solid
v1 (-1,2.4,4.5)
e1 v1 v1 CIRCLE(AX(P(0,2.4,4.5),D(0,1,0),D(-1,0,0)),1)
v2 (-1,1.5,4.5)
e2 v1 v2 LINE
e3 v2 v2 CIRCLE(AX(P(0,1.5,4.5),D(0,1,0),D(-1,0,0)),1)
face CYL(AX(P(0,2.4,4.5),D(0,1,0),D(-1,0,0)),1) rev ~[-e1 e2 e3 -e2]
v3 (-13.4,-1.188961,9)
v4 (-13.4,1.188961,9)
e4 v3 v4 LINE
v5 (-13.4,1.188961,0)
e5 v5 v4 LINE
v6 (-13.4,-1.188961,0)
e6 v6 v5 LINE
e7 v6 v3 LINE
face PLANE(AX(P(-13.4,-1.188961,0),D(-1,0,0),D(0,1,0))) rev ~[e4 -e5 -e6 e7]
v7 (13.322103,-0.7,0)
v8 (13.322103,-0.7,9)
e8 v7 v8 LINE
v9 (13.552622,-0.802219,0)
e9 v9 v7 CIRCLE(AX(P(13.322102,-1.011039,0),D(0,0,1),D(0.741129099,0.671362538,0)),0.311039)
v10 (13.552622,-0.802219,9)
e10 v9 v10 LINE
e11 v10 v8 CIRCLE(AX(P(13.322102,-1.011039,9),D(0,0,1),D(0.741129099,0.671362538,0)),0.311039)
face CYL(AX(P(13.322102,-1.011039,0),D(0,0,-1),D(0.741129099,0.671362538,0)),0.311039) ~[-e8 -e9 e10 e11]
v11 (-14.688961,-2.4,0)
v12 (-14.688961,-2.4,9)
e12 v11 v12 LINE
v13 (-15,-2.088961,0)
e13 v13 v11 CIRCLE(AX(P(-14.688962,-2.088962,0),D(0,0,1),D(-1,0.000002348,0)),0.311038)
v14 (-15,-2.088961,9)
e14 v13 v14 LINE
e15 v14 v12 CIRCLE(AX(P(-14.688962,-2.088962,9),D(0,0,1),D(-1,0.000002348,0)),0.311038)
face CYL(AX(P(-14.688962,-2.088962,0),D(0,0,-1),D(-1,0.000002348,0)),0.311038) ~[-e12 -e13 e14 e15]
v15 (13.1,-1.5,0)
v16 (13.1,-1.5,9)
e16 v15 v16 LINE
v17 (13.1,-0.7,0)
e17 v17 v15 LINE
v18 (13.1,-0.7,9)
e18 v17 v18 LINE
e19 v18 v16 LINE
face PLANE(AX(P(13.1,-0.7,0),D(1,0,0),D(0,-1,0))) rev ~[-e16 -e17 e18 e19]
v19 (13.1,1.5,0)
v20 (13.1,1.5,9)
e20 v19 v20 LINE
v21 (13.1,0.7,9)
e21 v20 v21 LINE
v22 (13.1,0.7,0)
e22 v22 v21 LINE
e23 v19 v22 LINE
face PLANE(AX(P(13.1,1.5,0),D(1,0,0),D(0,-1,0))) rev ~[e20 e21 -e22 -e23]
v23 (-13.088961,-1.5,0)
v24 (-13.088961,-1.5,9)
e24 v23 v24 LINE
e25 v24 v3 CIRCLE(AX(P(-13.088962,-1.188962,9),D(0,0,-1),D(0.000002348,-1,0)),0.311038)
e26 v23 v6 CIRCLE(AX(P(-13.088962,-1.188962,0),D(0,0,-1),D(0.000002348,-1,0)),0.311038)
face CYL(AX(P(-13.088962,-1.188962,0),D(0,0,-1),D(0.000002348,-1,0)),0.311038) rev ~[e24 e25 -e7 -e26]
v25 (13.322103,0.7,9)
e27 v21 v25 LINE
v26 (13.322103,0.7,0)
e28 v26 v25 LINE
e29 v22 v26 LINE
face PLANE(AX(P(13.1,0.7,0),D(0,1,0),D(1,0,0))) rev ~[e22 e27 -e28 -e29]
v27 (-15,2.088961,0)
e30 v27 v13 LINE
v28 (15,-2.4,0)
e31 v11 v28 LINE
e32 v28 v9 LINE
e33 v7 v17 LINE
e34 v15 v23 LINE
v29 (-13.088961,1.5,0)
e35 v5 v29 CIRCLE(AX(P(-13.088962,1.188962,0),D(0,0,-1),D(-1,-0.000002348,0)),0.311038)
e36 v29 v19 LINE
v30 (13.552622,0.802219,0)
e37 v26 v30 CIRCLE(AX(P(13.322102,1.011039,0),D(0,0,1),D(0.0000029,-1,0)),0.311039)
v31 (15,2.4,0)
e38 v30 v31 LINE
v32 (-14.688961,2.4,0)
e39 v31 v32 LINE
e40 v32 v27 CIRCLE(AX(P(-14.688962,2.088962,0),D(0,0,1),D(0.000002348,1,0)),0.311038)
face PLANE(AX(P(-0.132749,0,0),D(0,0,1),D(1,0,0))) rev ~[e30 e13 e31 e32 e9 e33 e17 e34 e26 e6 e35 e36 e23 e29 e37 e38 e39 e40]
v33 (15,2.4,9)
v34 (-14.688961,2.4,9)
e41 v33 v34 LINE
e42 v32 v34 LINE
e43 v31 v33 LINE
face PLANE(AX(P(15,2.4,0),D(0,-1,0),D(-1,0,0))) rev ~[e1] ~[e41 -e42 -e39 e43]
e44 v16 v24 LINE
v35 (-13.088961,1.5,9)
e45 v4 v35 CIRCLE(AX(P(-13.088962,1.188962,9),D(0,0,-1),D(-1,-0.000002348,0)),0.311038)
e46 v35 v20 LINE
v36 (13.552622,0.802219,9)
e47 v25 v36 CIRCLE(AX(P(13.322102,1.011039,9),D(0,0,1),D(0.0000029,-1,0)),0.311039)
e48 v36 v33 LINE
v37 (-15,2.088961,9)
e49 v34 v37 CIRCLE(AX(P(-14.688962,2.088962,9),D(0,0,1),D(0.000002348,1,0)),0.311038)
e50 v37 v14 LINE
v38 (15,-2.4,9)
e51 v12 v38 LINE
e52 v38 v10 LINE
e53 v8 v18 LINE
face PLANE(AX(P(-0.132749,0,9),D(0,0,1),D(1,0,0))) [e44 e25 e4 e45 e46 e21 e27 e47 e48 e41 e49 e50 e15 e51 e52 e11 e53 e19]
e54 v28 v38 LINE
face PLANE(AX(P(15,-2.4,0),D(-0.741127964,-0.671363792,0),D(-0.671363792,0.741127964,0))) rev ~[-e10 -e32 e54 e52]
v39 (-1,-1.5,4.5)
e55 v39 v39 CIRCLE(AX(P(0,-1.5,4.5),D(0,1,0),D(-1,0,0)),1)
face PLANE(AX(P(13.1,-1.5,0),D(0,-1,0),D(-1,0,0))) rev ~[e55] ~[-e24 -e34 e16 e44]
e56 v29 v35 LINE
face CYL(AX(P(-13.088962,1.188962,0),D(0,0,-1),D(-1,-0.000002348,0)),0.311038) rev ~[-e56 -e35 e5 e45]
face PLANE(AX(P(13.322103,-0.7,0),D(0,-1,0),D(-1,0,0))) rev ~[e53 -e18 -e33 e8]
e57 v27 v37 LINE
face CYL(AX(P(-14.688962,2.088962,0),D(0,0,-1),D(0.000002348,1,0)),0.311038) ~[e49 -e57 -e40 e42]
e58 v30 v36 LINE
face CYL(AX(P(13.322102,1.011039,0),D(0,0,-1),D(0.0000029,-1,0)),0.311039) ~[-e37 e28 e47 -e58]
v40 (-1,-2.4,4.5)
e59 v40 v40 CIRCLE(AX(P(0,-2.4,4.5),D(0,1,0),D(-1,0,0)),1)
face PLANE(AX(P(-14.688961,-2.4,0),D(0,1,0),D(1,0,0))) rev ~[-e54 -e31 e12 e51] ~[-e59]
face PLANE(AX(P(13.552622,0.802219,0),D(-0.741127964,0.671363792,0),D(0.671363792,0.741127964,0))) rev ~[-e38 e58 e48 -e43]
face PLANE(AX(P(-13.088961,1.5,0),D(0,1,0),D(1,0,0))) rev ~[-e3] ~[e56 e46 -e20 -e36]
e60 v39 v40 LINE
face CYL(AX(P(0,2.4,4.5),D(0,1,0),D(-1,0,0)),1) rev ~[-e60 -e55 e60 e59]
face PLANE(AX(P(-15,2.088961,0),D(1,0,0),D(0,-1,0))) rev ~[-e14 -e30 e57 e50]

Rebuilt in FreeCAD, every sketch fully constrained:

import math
import FreeCAD as App
import Part
import Sketcher
Q = App.Units.Quantity

doc = App.newDocument("Part")
params = doc.addObject("Spreadsheet::Sheet", "Params")
for row, (alias, value) in enumerate([
    ("sketch1_height", "0.8 mm"),
    ("pad1_length", "9 mm"),
    ("sketch2_diameter", "2 mm"),
], start=1):
    params.set(f"A{row}", alias)
    params.set(f"B{row}", "=" + value)
    params.setAlias(f"B{row}", alias)

body = doc.addObject("PartDesign::Body", "Body")

# Sketch on XY plane
sketch1 = body.newObject("Sketcher::SketchObject", "Sketch")
sketch1.AttachmentSupport = (doc.getObject("XY_Plane"), [""])
sketch1.MapMode = "FlatFace"
sketch1.addGeometry(Part.LineSegment(App.Vector(-14.688961, -2.4, 0), App.Vector(15, -2.4, 0)), False)
sketch1.addGeometry(Part.LineSegment(App.Vector(15, -2.4, 0), App.Vector(13.552622, -0.802219, 0)), False)
sketch1.addGeometry(Part.ArcOfCircle(Part.Circle(App.Vector(13.322102, -1.011039, 0), App.Vector(0, 0, 1), 0.311039), math.radians(42.172313), math.radians(89.999834)), False)
sketch1.addGeometry(Part.LineSegment(App.Vector(13.322103, -0.7, 0), App.Vector(13.1, -0.7, 0)), False)
sketch1.addGeometry(Part.LineSegment(App.Vector(13.1, -0.7, 0), App.Vector(13.1, -1.5, 0)), False)
sketch1.addGeometry(Part.LineSegment(App.Vector(13.1, -1.5, 0), App.Vector(-13.088961, -1.5, 0)), False)
sketch1.addGeometry(Part.ArcOfCircle(Part.Circle(App.Vector(-13.088962, -1.188962, 0), App.Vector(0, 0, 1), 0.311038), math.radians(179.999866), math.radians(270.000134)), False)
sketch1.addGeometry(Part.LineSegment(App.Vector(-13.4, -1.188961, 0), App.Vector(-13.4, 1.188961, 0)), False)
sketch1.addGeometry(Part.ArcOfCircle(Part.Circle(App.Vector(-13.088962, 1.188962, 0), App.Vector(0, 0, 1), 0.311038), math.radians(89.999866), math.radians(180.000134)), False)
sketch1.addGeometry(Part.LineSegment(App.Vector(-13.088961, 1.5, 0), App.Vector(13.1, 1.5, 0)), False)
sketch1.addGeometry(Part.LineSegment(App.Vector(13.1, 1.5, 0), App.Vector(13.1, 0.7, 0)), False)
sketch1.addGeometry(Part.LineSegment(App.Vector(13.1, 0.7, 0), App.Vector(13.322103, 0.7, 0)), False)
sketch1.addGeometry(Part.ArcOfCircle(Part.Circle(App.Vector(13.322102, 1.011039, 0), App.Vector(0, 0, 1), 0.311039), math.radians(-89.999834), math.radians(-42.172313)), False)
sketch1.addGeometry(Part.LineSegment(App.Vector(13.552622, 0.802219, 0), App.Vector(15, 2.4, 0)), False)
sketch1.addGeometry(Part.LineSegment(App.Vector(15, 2.4, 0), App.Vector(-14.688961, 2.4, 0)), False)
sketch1.addGeometry(Part.ArcOfCircle(Part.Circle(App.Vector(-14.688962, 2.088962, 0), App.Vector(0, 0, 1), 0.311038), math.radians(89.999866), math.radians(180.000134)), False)
sketch1.addGeometry(Part.LineSegment(App.Vector(-15, 2.088961, 0), App.Vector(-15, -2.088961, 0)), False)
sketch1.addGeometry(Part.ArcOfCircle(Part.Circle(App.Vector(-14.688962, -2.088962, 0), App.Vector(0, 0, 1), 0.311038), math.radians(179.999866), math.radians(270.000134)), False)
sketch1.addConstraint(Sketcher.Constraint("Coincident", 0, 2, 1, 1))
sketch1.addConstraint(Sketcher.Constraint("Tangent", 1, 2, 2, 1))
sketch1.addConstraint(Sketcher.Constraint("Coincident", 2, 2, 3, 1))
sketch1.addConstraint(Sketcher.Constraint("Coincident", 3, 2, 4, 1))
sketch1.addConstraint(Sketcher.Constraint("Coincident", 4, 2, 5, 1))
sketch1.addConstraint(Sketcher.Constraint("Coincident", 5, 2, 6, 2))
sketch1.addConstraint(Sketcher.Constraint("Coincident", 6, 1, 7, 1))
sketch1.addConstraint(Sketcher.Constraint("Coincident", 7, 2, 8, 2))
sketch1.addConstraint(Sketcher.Constraint("Coincident", 8, 1, 9, 1))
sketch1.addConstraint(Sketcher.Constraint("Coincident", 9, 2, 10, 1))
sketch1.addConstraint(Sketcher.Constraint("Coincident", 10, 2, 11, 1))
sketch1.addConstraint(Sketcher.Constraint("Coincident", 11, 2, 12, 1))
sketch1.addConstraint(Sketcher.Constraint("Tangent", 12, 2, 13, 1))
sketch1.addConstraint(Sketcher.Constraint("Coincident", 13, 2, 14, 1))
sketch1.addConstraint(Sketcher.Constraint("Coincident", 14, 2, 15, 1))
sketch1.addConstraint(Sketcher.Constraint("Coincident", 15, 2, 16, 1))
sketch1.addConstraint(Sketcher.Constraint("Coincident", 16, 2, 17, 1))
sketch1.addConstraint(Sketcher.Constraint("Coincident", 17, 2, 0, 1))
sketch1.addConstraint(Sketcher.Constraint("Horizontal", 0))
sketch1.addConstraint(Sketcher.Constraint("Horizontal", 3))
sketch1.addConstraint(Sketcher.Constraint("Vertical", 4))
sketch1.addConstraint(Sketcher.Constraint("Horizontal", 5))
sketch1.addConstraint(Sketcher.Constraint("Vertical", 7))
sketch1.addConstraint(Sketcher.Constraint("Horizontal", 9))
sketch1.addConstraint(Sketcher.Constraint("Vertical", 10))
sketch1.addConstraint(Sketcher.Constraint("Horizontal", 11))
sketch1.addConstraint(Sketcher.Constraint("Horizontal", 14))
sketch1.addConstraint(Sketcher.Constraint("Vertical", 16))
sketch1.addConstraint(Sketcher.Constraint("Equal", 2, 6))
sketch1.addConstraint(Sketcher.Constraint("Equal", 6, 8))
sketch1.addConstraint(Sketcher.Constraint("Equal", 8, 12))
sketch1.addConstraint(Sketcher.Constraint("Equal", 12, 15))
sketch1.addConstraint(Sketcher.Constraint("Equal", 15, 17))
sketch1.addConstraint(Sketcher.Constraint("Symmetric", 2, 3, 12, 3, -1))
sketch1.addConstraint(Sketcher.Constraint("Symmetric", 5, 2, 8, 1, -1))
sketch1.addConstraint(Sketcher.Constraint("Symmetric", 0, 2, 13, 2, -1))
sketch1.addConstraint(Sketcher.Constraint("Horizontal", 8, 3, 7, 2))
sketch1.addConstraint(Sketcher.Constraint("Horizontal", 17, 3, 16, 2))
sketch1.addConstraint(Sketcher.Constraint("Vertical", 12, 3, 2, 2))
sketch1.addConstraint(Sketcher.Constraint("Vertical", 8, 3, 5, 2))
sketch1.addConstraint(Sketcher.Constraint("Vertical", 4, 2, 9, 2))
sketch1.addConstraint(Sketcher.Constraint("Vertical", 2, 2, 11, 2))
sketch1.addConstraint(Sketcher.Constraint("Vertical", 17, 3, 14, 2))
sketch1.addConstraint(Sketcher.Constraint("Vertical", 14, 2, 17, 2))
sketch1.addConstraint(Sketcher.Constraint("DistanceY", 4, 2, 4, 1, Q("0.8 mm")))
sketch1.addConstraint(Sketcher.Constraint("DistanceX", -1, 1, 0, 2, Q("15 mm")))
sketch1.addConstraint(Sketcher.Constraint("DistanceX", 15, 2, -1, 1, Q("15 mm")))
sketch1.addConstraint(Sketcher.Constraint("DistanceY", 0, 2, -1, 1, Q("2.4 mm")))
sketch1.addConstraint(Sketcher.Constraint("DistanceY", 2, 2, -1, 1, Q("0.7 mm")))
sketch1.addConstraint(Sketcher.Constraint("DistanceX", -1, 1, 3, 2, Q("13.1 mm")))
sketch1.addConstraint(Sketcher.Constraint("DistanceX", 6, 1, -1, 1, Q("13.4 mm")))
sketch1.addConstraint(Sketcher.Constraint("DistanceY", 17, 3, 6, 1, Q("0.900001 mm")))
sketch1.addConstraint(Sketcher.Constraint("DistanceY", 7, 2, 15, 2, Q("0.9 mm")))
sketch1.addConstraint(Sketcher.Constraint("Radius", 2, Q("0.311039 mm")))
sketch1.addConstraint(Sketcher.Constraint("DistanceX", 3, 2, 3, 1, Q("0.222103 mm")))
sketch1.setExpression("Constraints[44]", "Params.sketch1_height")
pad1 = body.newObject("PartDesign::Pad", "Pad")
pad1.Profile = sketch1
pad1.setExpression("Length", "Params.pad1_length")

# Sketch on XZ plane
sketch2 = body.newObject("Sketcher::SketchObject", "Sketch001")
sketch2.AttachmentSupport = (doc.getObject("XZ_Plane"), [""])
sketch2.MapMode = "FlatFace"
sketch2.AttachmentOffset = App.Placement(App.Vector(0, 0, -2.4), App.Rotation())
sketch2.addGeometry(Part.Circle(App.Vector(0, 4.5, 0), App.Vector(0, 0, 1), 1), False)
sketch2.addConstraint(Sketcher.Constraint("PointOnObject", 0, 3, -2))
sketch2.addConstraint(Sketcher.Constraint("Diameter", 0, Q("2 mm")))
sketch2.addConstraint(Sketcher.Constraint("DistanceY", -1, 1, 0, 3, Q("4.5 mm")))
sketch2.setExpression("Constraints[1]", "Params.sketch2_diameter")
pocket1 = body.newObject("PartDesign::Pocket", "Pocket")
pocket1.Profile = sketch2
pocket1.Type = "ThroughAll"
pocket1.Reversed = True

doc.recompute()
